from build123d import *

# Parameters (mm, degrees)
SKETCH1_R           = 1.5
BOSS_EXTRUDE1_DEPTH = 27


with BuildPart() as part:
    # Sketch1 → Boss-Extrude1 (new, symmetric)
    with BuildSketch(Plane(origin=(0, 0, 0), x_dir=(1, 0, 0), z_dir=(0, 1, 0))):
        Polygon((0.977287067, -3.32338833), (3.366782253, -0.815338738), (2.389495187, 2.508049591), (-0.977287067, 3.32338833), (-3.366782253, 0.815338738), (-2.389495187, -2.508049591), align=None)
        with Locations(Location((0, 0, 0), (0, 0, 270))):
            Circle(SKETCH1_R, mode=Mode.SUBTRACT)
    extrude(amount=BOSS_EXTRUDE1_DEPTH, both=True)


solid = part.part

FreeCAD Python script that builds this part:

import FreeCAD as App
import Part
import Sketcher

V = App.Vector


def add_polygon(sketch, points):
    """Adds a closed chain of lines whose ends are joined by coincident constraints."""
    first, n = sketch.GeometryCount, len(points)
    for a, b in zip(points, points[1:] + points[:1]):
        sketch.addGeometry(Part.LineSegment(App.Vector(*a, 0), App.Vector(*b, 0)), False)
    for i in range(n):
        sketch.addConstraint(Sketcher.Constraint("Coincident", first + i, 2, first + (i + 1) % n, 1))

doc = App.newDocument("Part")
params = doc.addObject("Spreadsheet::Sheet", "Params")
for row, (alias, value) in enumerate([
    ("sketch1_diameter", "3 mm"),
    ("pad1_length", "54 mm"),
], start=1):
    params.set(f"A{row}", alias)
    params.set(f"B{row}", "=" + value)
    params.setAlias(f"B{row}", alias)

body = doc.addObject("PartDesign::Body", "Body")

sketch1 = body.newObject("Sketcher::SketchObject", "Sketch")
sketch1.AttachmentSupport = (doc.getObject("XZ_Plane"), [""])
sketch1.MapMode = "FlatFace"
add_polygon(sketch1, [(1, 3.3), (3.4, 0.8), (2.4, -2.5), (-1, -3.3), (-3.4, -0.8), (-2.4, 2.5)])
sketch1.addGeometry(Part.Circle(V(0, 0, 0), V(0, 0, 1), 1.5), False)
sketch1.addConstraint(Sketcher.Constraint("Coincident", 6, 3, -1, 1))
sketch1.addConstraint(Sketcher.Constraint("Symmetric", 0, 2, 3, 2, -1, 1))
sketch1.addConstraint(Sketcher.Constraint("Symmetric", 1, 2, 4, 2, -1, 1))
sketch1.addConstraint(Sketcher.Constraint("Symmetric", 2, 2, 5, 2, -1, 1))
sketch1.addConstraint(Sketcher.Constraint("Equal", 0, 1))
sketch1.addConstraint(Sketcher.Constraint("Equal", 1, 2))
sketch1.addConstraint(Sketcher.Constraint("Diameter", 6, 3.0))
sketch1.addConstraint(Sketcher.Constraint("Distance", 0, 3.464102))
sketch1.addConstraint(Sketcher.Constraint("DistanceY", 1, 2, 4, 2, 5.016099))
sketch1.addConstraint(Sketcher.Constraint("DistanceY", -1, 1, 0, 2, 0.815339))
sketch1.addConstraint(Sketcher.Constraint("DistanceY", 2, 2, -1, 1, 3.323388))
sketch1.setExpression("Constraints[12]", "Params.sketch1_diameter")
pad1 = body.newObject("PartDesign::Pad", "Pad")
pad1.Profile = sketch1
pad1.setExpression("Length", "Params.pad1_length")
pad1.Midplane = True

doc.recompute()
